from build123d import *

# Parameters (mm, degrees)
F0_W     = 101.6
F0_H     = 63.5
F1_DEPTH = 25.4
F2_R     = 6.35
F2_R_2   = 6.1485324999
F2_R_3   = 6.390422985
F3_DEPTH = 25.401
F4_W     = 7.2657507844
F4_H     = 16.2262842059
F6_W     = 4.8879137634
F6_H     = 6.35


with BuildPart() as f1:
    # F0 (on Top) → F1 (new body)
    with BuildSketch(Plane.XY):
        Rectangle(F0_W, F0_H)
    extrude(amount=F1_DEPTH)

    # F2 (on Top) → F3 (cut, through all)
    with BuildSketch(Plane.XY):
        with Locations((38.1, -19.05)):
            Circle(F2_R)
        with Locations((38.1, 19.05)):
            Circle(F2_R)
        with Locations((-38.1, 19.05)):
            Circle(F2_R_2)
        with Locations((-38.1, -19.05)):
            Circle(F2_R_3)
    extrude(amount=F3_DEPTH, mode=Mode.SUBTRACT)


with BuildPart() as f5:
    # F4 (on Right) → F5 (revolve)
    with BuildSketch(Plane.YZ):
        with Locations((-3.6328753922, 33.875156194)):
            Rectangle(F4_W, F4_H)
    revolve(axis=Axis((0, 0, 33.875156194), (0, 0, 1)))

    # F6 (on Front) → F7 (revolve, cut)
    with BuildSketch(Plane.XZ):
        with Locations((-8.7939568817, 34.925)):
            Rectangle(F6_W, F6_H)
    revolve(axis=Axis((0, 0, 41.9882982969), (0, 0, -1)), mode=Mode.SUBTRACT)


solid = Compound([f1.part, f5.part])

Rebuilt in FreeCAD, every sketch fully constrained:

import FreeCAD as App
import Part
import Sketcher
from FreeCAD import Vector
Q = App.Units.Quantity


def add_polygon(sketch, points):
    """Adds a closed chain of lines whose ends are joined by coincident constraints."""
    first, n = sketch.GeometryCount, len(points)
    for a, b in zip(points, points[1:] + points[:1]):
        sketch.addGeometry(Part.LineSegment(App.Vector(*a, 0), App.Vector(*b, 0)), False)
    for i in range(n):
        sketch.addConstraint(Sketcher.Constraint("Coincident", first + i, 2, first + (i + 1) % n, 1))

doc = App.newDocument("Part")
params = doc.addObject("Spreadsheet::Sheet", "Params")
for row, (alias, value) in enumerate([
    ("sketch1_width", "4 in"),
    ("sketch1_height", "2.5 in"),
    ("pad1_length", "1 in"),
    ("sketch2_diameter", "0.5 in"),
    ("revolution_angle", "360 deg"),
    ("sketch4_height", "0.25 in"),
    ("groove_angle", "360 deg"),
], start=1):
    params.set(f"A{row}", alias)
    params.set(f"B{row}", "=" + value)
    params.setAlias(f"B{row}", alias)

body = doc.addObject("PartDesign::Body", "Body")

# Sketch on XY plane
sketch1 = body.newObject("Sketcher::SketchObject", "Sketch")
sketch1.AttachmentSupport = (doc.getObject("XY_Plane"), [""])
sketch1.MapMode = "FlatFace"
add_polygon(sketch1, [(-51, 32), (-51, -32), (51, -32), (51, 32)])  # lines 0-3
sketch1.addConstraint([
    Sketcher.Constraint("Vertical", 0),
    Sketcher.Constraint("Horizontal", 1),
    Sketcher.Constraint("Vertical", 2),
    Sketcher.Constraint("Horizontal", 3),
    Sketcher.Constraint("Symmetric", 0, 2, 2, 2, -1, 1),
    Sketcher.Constraint("DistanceX", 1, 1, 1, 2, Q("4 in")),
    Sketcher.Constraint("DistanceY", 0, 2, 0, 1, Q("2.5 in")),
])
sketch1.setExpression("Constraints[9]", "Params.sketch1_width")
sketch1.setExpression("Constraints[10]", "Params.sketch1_height")
pad1 = body.newObject("PartDesign::Pad", "Pad")
pad1.Profile = sketch1
pad1.setExpression("Length", "Params.pad1_length")

# Sketch on XY plane
sketch2 = body.newObject("Sketcher::SketchObject", "Sketch001")
sketch2.AttachmentSupport = (doc.getObject("XY_Plane"), [""])
sketch2.MapMode = "FlatFace"
sketch2.addGeometry([
    Part.Circle(Vector(38, -19, 0), Vector(0, 0, 1), 6),
    Part.Circle(Vector(38, 19, 0), Vector(0, 0, 1), 6),
    Part.Circle(Vector(-38, 19, 0), Vector(0, 0, 1), 6),
    Part.Circle(Vector(-38, -19, 0), Vector(0, 0, 1), 6),
], False)
sketch2.addConstraint([
    Sketcher.Constraint("Equal", 0, 1),
    Sketcher.Constraint("Symmetric", 0, 3, 2, 3, -1, 1),
    Sketcher.Constraint("Symmetric", 1, 3, 3, 3, -1, 1),
    Sketcher.Constraint("Symmetric", 1, 3, 2, 3, -2),
    Sketcher.Constraint("Diameter", 0, Q("0.5 in")),
    Sketcher.Constraint("DistanceX", 2, 3, 1, 3, Q("3 in")),
    Sketcher.Constraint("DistanceY", 0, 3, 1, 3, Q("1.5 in")),
    Sketcher.Constraint("Diameter", 2, 12.297065),
    Sketcher.Constraint("Diameter", 3, 12.780846),
])
sketch2.setExpression("Constraints[4]", "Params.sketch2_diameter")
pocket1 = body.newObject("PartDesign::Pocket", "Pocket")
pocket1.Profile = sketch2
pocket1.Type = "ThroughAll"
pocket1.Reversed = True
body2 = doc.addObject("PartDesign::Body", "Body001")

# Sketch on YZ plane
sketch3 = body2.newObject("Sketcher::SketchObject", "Sketch002")
sketch3.AttachmentSupport = (doc.getObject("YZ_Plane001"), [""])
sketch3.MapMode = "FlatFace"
add_polygon(sketch3, [(-7, 42), (-7, 26), (0, 26), (0, 42)])  # lines 0-3
sketch3.addConstraint([
    Sketcher.Constraint("Vertical", 0),
    Sketcher.Constraint("Horizontal", 1),
    Sketcher.Constraint("Vertical", 2),
    Sketcher.Constraint("Horizontal", 3),
    Sketcher.Constraint("PointOnObject", 1, 2, -2),
    Sketcher.Constraint("DistanceX", 1, 1, 1, 2, 7.265751),
    Sketcher.Constraint("DistanceY", -1, 1, 2, 2, 41.988298),
    Sketcher.Constraint("DistanceY", 0, 2, 0, 1, 16.226284),
])
revolution = body2.newObject("PartDesign::Revolution", "Revolution")
revolution.Profile = sketch3
revolution.ReferenceAxis = (sketch3, ["V_Axis"])
revolution.setExpression("Angle", "Params.revolution_angle")

# Sketch on XZ plane
sketch4 = body2.newObject("Sketcher::SketchObject", "Sketch003")
sketch4.AttachmentSupport = (doc.getObject("XZ_Plane001"), [""])
sketch4.MapMode = "FlatFace"
add_polygon(sketch4, [(-11.2, 38.1), (-11.2, 31.8), (-6.3, 31.8), (-6.3, 38.1)])  # lines 0-3
sketch4.addConstraint([
    Sketcher.Constraint("Vertical", 0),
    Sketcher.Constraint("Horizontal", 1),
    Sketcher.Constraint("Vertical", 2),
    Sketcher.Constraint("Horizontal", 3),
    Sketcher.Constraint("DistanceY", 0, 2, 0, 1, Q("0.25 in")),
    Sketcher.Constraint("DistanceY", -1, 1, 2, 2, Q("1.5 in")),
    Sketcher.Constraint("DistanceX", 1, 2, -1, 1, Q("0.25 in")),
    Sketcher.Constraint("DistanceX", 1, 1, 1, 2, 4.887914),
])
sketch4.setExpression("Constraints[8]", "Params.sketch4_height")
groove = body2.newObject("PartDesign::Groove", "Groove")
groove.Profile = sketch4
groove.ReferenceAxis = (sketch4, ["V_Axis"])
groove.setExpression("Angle", "Params.groove_angle")

doc.recompute()
